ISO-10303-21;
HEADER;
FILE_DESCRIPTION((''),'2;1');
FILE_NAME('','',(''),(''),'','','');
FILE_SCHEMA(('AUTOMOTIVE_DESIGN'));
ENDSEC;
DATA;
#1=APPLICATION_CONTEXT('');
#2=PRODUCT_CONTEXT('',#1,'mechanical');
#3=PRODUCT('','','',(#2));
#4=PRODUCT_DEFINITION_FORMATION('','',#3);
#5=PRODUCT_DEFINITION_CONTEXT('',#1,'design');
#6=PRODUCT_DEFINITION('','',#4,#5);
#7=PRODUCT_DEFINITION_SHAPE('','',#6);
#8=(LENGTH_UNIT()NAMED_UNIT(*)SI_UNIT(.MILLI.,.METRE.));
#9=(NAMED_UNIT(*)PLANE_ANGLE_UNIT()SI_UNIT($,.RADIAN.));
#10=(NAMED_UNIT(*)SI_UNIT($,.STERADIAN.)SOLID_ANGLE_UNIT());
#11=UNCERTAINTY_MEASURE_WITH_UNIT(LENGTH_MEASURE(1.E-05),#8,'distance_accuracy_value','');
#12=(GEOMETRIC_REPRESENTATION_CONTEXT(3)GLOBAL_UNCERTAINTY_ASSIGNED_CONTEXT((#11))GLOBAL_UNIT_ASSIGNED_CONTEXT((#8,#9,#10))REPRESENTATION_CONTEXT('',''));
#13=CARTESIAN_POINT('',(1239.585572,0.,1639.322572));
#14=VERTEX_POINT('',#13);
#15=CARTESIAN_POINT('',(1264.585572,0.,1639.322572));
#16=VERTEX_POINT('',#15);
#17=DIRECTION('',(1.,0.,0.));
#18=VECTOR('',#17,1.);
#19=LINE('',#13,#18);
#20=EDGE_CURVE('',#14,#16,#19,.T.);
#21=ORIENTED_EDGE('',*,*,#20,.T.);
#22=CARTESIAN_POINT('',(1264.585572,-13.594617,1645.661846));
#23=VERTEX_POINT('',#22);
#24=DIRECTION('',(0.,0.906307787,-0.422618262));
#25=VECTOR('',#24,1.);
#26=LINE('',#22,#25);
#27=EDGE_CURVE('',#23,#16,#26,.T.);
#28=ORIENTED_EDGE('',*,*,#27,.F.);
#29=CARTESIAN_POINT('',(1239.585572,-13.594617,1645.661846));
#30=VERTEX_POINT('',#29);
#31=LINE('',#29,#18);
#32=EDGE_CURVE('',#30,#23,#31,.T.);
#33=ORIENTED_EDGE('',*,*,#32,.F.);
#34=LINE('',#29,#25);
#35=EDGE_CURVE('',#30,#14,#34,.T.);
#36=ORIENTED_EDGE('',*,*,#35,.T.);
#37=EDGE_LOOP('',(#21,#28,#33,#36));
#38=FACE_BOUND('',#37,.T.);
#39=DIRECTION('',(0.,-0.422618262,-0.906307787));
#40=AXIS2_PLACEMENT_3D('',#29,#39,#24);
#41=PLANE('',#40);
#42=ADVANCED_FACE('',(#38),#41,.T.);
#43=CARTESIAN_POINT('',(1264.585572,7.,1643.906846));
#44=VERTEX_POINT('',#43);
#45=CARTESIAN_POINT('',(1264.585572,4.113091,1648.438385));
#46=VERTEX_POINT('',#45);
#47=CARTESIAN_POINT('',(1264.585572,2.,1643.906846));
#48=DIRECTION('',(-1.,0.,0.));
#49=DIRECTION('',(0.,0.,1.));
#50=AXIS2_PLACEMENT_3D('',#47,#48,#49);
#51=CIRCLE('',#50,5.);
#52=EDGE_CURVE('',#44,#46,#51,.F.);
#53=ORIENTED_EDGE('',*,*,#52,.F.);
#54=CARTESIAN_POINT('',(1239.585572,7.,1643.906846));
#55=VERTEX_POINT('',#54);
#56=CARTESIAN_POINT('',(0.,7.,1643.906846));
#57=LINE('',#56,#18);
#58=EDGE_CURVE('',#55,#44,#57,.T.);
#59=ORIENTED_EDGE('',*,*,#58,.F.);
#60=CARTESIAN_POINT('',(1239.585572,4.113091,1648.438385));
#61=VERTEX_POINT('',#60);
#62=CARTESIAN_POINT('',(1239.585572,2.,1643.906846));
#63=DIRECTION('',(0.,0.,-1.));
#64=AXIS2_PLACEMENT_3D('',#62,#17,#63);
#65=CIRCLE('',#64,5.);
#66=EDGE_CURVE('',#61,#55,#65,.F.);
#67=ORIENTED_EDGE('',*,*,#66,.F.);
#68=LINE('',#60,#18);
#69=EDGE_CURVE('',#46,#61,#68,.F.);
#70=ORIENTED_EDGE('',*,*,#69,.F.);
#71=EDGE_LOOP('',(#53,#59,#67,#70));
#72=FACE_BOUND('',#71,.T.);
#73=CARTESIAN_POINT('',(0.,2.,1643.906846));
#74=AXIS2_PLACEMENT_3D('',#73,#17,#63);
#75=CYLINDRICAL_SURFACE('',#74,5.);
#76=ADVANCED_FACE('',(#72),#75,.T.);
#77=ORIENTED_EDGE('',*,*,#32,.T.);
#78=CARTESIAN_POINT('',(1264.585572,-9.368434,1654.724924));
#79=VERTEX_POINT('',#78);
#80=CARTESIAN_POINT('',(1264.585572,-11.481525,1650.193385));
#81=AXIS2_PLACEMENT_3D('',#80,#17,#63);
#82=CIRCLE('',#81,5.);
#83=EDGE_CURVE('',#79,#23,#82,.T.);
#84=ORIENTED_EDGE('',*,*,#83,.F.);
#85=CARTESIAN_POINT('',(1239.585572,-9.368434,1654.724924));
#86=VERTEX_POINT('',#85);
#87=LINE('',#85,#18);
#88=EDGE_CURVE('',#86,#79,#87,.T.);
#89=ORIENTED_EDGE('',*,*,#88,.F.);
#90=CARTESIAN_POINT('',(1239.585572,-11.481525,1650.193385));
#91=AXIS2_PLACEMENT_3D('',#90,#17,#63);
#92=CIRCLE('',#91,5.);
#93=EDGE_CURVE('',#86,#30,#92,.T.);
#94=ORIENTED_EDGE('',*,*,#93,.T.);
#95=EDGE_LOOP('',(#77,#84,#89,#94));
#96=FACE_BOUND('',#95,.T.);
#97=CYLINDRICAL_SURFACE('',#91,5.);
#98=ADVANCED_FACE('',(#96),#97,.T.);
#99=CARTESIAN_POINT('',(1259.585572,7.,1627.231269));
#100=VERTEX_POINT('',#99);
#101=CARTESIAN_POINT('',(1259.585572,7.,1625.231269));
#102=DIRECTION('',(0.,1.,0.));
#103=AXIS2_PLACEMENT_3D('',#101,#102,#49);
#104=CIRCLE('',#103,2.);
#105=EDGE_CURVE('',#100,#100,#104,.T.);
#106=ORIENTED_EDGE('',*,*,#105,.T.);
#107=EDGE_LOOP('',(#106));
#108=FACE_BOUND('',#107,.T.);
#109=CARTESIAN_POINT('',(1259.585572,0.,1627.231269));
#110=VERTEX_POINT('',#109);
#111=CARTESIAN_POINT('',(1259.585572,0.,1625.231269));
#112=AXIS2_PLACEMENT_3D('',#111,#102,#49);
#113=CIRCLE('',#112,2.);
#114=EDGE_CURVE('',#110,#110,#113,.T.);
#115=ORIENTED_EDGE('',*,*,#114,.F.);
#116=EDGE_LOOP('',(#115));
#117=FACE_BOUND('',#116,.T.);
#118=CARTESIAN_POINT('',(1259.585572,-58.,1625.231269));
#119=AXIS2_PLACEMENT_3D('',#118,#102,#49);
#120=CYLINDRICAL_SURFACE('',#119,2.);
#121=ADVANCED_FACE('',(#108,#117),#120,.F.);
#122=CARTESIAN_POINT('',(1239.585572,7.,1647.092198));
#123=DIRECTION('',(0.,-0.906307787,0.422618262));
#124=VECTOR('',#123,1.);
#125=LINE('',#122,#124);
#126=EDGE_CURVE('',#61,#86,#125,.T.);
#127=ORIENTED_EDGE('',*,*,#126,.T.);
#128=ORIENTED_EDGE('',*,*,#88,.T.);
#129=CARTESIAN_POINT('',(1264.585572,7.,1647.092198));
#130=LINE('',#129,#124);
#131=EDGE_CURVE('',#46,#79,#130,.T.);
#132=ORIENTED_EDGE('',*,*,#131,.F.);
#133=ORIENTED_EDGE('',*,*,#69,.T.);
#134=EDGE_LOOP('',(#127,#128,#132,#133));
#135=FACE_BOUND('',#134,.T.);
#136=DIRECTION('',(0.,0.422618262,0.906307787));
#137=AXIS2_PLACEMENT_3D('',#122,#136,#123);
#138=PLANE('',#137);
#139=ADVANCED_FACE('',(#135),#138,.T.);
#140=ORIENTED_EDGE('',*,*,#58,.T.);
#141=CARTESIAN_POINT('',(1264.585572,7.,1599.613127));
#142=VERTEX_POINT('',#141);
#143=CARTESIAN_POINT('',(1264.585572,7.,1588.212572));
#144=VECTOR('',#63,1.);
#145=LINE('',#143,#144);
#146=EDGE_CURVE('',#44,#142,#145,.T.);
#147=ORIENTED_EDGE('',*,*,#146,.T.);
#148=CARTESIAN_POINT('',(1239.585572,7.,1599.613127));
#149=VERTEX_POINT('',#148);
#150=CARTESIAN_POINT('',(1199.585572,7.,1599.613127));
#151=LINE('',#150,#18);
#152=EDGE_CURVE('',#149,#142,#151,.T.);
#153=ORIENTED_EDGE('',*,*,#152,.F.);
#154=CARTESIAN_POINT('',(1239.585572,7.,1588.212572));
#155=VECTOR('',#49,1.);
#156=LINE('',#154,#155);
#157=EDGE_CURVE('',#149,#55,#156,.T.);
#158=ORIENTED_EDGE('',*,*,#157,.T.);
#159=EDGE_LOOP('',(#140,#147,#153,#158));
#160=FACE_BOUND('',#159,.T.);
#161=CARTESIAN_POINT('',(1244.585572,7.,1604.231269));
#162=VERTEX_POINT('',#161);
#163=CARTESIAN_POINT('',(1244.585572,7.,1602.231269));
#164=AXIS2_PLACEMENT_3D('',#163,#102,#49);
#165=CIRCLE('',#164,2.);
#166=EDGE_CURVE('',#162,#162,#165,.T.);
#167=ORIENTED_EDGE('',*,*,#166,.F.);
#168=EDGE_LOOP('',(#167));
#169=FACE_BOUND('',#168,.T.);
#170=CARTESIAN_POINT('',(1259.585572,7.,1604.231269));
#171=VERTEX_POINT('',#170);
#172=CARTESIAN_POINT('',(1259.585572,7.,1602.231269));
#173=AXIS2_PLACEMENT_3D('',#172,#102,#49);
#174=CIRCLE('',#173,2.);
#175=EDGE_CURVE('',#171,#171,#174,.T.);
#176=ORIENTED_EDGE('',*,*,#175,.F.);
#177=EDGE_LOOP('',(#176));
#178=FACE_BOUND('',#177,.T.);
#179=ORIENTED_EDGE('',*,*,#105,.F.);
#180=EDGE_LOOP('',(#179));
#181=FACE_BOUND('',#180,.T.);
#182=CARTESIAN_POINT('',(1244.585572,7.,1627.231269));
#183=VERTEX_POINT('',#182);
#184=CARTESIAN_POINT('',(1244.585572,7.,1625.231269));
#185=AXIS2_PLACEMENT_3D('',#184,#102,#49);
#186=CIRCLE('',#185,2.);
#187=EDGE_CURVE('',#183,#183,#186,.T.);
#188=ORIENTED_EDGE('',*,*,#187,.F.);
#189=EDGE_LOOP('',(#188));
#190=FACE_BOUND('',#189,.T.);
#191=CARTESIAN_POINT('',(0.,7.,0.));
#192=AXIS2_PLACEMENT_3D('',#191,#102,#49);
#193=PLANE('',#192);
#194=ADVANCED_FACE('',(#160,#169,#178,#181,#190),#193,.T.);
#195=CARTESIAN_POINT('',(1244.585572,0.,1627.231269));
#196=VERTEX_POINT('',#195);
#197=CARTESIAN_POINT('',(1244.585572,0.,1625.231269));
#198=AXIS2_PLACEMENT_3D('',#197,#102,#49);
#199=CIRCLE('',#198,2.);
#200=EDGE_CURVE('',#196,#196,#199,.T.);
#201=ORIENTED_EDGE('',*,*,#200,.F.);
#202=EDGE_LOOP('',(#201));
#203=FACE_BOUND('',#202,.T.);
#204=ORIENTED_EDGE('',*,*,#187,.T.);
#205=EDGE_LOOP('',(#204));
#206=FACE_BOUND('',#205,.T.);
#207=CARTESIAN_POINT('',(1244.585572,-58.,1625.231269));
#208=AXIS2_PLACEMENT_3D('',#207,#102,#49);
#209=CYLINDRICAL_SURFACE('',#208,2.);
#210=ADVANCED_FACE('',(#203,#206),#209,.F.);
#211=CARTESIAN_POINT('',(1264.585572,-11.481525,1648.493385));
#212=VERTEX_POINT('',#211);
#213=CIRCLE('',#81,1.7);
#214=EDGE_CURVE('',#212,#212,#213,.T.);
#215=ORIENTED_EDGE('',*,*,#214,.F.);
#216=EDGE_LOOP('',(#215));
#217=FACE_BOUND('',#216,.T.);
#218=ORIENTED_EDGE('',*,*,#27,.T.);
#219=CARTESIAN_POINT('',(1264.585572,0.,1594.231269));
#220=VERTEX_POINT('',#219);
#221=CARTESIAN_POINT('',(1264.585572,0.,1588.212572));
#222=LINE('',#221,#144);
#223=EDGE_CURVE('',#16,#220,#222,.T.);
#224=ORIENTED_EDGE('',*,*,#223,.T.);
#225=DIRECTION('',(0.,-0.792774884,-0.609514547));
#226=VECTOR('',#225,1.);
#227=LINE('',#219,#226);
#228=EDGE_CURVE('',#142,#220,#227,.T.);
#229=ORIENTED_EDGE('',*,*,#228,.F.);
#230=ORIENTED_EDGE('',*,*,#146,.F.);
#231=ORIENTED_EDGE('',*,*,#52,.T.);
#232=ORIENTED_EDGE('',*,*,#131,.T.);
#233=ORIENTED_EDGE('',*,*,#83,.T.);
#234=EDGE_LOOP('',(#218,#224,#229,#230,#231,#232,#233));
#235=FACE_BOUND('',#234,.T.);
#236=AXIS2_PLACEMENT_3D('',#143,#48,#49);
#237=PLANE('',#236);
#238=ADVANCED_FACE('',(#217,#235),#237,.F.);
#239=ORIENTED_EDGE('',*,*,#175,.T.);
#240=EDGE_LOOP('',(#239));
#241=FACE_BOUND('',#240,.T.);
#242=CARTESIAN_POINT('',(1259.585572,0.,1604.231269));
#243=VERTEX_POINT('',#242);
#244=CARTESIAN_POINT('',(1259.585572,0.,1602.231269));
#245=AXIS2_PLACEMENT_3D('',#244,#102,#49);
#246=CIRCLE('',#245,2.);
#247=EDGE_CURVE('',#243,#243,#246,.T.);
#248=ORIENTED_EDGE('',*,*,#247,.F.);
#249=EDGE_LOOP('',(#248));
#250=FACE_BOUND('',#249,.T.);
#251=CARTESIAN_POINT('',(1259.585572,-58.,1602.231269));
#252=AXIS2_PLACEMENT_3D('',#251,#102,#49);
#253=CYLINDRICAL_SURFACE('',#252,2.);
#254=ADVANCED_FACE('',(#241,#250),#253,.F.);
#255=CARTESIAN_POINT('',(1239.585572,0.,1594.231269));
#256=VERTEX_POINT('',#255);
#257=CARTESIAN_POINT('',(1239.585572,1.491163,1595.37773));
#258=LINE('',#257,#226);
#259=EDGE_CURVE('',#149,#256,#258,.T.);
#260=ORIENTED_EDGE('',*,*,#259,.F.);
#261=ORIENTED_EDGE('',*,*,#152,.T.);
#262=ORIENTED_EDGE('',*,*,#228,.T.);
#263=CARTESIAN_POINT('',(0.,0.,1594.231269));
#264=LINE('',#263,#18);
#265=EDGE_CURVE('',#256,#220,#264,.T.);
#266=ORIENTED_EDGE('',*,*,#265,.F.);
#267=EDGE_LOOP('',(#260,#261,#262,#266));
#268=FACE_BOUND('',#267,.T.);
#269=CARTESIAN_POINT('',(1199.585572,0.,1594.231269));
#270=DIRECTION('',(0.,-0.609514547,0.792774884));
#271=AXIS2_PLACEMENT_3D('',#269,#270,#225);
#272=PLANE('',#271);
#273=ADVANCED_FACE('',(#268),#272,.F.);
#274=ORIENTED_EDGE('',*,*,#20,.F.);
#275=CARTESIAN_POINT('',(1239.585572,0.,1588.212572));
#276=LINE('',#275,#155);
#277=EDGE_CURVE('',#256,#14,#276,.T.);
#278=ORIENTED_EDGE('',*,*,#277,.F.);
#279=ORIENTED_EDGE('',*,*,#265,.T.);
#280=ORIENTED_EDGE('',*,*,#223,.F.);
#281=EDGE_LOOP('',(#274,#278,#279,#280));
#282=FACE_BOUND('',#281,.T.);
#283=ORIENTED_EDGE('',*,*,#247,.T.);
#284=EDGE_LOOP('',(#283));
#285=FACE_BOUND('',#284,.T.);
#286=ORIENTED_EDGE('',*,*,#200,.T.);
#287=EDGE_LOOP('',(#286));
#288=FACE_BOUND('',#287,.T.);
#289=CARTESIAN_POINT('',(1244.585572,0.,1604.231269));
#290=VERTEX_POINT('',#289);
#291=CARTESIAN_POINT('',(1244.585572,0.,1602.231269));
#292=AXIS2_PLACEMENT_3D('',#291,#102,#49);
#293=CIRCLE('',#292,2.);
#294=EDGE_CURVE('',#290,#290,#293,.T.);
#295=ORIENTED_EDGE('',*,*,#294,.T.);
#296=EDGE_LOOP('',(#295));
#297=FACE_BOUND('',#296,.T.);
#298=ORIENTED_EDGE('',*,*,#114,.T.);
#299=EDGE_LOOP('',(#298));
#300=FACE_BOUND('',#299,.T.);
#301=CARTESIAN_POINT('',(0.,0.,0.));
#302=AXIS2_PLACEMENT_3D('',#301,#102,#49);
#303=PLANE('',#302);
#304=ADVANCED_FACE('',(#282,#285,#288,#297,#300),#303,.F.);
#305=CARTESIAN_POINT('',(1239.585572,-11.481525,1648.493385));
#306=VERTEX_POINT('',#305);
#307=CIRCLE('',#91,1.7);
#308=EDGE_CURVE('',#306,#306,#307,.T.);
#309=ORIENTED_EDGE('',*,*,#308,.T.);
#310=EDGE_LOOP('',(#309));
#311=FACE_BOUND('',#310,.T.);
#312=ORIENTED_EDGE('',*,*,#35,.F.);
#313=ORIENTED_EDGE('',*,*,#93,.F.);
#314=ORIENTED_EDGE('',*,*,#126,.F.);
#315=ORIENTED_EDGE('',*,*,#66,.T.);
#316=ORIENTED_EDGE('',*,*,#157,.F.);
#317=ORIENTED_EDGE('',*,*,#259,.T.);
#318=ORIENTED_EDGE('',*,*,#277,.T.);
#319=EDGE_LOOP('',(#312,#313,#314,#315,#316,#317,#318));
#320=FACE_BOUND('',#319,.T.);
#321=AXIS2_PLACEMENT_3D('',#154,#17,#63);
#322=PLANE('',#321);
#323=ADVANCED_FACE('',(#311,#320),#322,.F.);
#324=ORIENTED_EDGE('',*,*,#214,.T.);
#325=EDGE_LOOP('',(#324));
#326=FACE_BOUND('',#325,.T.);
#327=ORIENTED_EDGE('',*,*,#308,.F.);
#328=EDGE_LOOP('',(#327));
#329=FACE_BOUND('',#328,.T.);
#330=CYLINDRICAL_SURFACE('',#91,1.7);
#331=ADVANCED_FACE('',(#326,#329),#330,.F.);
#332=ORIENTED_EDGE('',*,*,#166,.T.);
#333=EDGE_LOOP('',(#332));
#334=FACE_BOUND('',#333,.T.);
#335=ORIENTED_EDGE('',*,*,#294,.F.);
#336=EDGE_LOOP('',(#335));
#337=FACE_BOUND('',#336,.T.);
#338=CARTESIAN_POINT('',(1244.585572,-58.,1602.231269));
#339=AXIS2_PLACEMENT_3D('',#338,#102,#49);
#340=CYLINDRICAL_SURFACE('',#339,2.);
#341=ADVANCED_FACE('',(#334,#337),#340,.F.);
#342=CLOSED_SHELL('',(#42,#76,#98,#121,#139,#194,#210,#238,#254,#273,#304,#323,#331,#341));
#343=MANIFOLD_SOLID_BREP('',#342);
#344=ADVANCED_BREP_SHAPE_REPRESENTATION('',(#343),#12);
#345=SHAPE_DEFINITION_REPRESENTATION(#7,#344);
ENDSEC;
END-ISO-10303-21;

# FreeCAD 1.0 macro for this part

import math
import FreeCAD as App
import Part
import Sketcher
from FreeCAD import Vector
Q = App.Units.Quantity


def edges_at(feature, points):
    """Names of the edges that pass closest to the given points."""
    edges = feature.Shape.Edges
    near = lambda p: min(range(len(edges)), key=lambda i: edges[i].distToShape(Part.Vertex(*p))[0])
    return sorted({f"Edge{near(p) + 1}" for p in points})

doc = App.newDocument("Part")
body = doc.addObject("PartDesign::Body", "Body")

sketch1 = doc.addObject("Sketcher::SketchObject", "Sketch")
body.addObject(sketch1)
sketch1.AttachmentSupport = (doc.XZ_Plane, [""])
sketch1.MapMode = "FlatFace"
sketch1.addGeometry(Part.LineSegment(Vector(1239.585572, 1588.212572, 0), Vector(1239.585572, 1632.122572, 0)), False)
sketch1.addGeometry(Part.LineSegment(Vector(1239.585572, 1632.122572, 0), Vector(1264.585572, 1632.122572, 0)), False)
sketch1.addGeometry(Part.LineSegment(Vector(1264.585572, 1632.122572, 0), Vector(1264.585572, 1588.212572, 0)), False)
sketch1.addGeometry(Part.LineSegment(Vector(1264.585572, 1588.212572, 0), Vector(1239.585572, 1588.212572, 0)), False)
sketch1.addConstraint(Sketcher.Constraint("Coincident", 0, 2, 1, 1))
sketch1.addConstraint(Sketcher.Constraint("Coincident", 1, 2, 2, 1))
sketch1.addConstraint(Sketcher.Constraint("Coincident", 2, 2, 3, 1))
sketch1.addConstraint(Sketcher.Constraint("Coincident", 3, 2, 0, 1))
sketch1.addConstraint(Sketcher.Constraint("Vertical", 0))
sketch1.addConstraint(Sketcher.Constraint("Horizontal", 1))
sketch1.addConstraint(Sketcher.Constraint("Vertical", 2))
sketch1.addConstraint(Sketcher.Constraint("Horizontal", 3))
sketch1.addConstraint(Sketcher.Constraint("DistanceX", 1, 1, 1, 2, 25.0))
sketch1.addConstraint(Sketcher.Constraint("DistanceY", 0, 1, 0, 2, 43.91))
sketch1.addConstraint(Sketcher.Constraint("DistanceX", -1, 1, 0, 2, 1239.585572))
sketch1.addConstraint(Sketcher.Constraint("DistanceY", -1, 1, 0, 2, 1632.122572))
pad1 = doc.addObject("PartDesign::Pad", "Pad")
body.addObject(pad1)
pad1.Profile = sketch1
pad1.Length = 7
pad1.Reversed = True

sketch2 = doc.addObject("Sketcher::SketchObject", "Sketch001")
body.addObject(sketch2)
sketch2.AttachmentSupport = (doc.YZ_Plane, [""])
sketch2.MapMode = "FlatFace"
sketch2.AttachmentOffset = App.Placement(Vector(0, 0, 1264.585572), App.Rotation())
sketch2.addGeometry(Part.LineSegment(Vector(7, 1599.613127, 0), Vector(0, 1594.231269, 0)), False)
sketch2.addGeometry(Part.LineSegment(Vector(0, 1594.231269, 0), Vector(-1.015545, 1585.312996, 0)), False)
sketch2.addGeometry(Part.LineSegment(Vector(-1.015545, 1585.312996, 0), Vector(9.948425, 1588.127511, 0)), False)
sketch2.addGeometry(Part.LineSegment(Vector(9.948425, 1588.127511, 0), Vector(7, 1599.613127, 0)), False)
sketch2.addConstraint(Sketcher.Constraint("Coincident", 0, 2, 1, 1))
sketch2.addConstraint(Sketcher.Constraint("Coincident", 1, 2, 2, 1))
sketch2.addConstraint(Sketcher.Constraint("Coincident", 2, 2, 3, 1))
sketch2.addConstraint(Sketcher.Constraint("Coincident", 3, 2, 0, 1))
sketch2.addConstraint(Sketcher.Constraint("PointOnObject", 0, 2, -2))
sketch2.addConstraint(Sketcher.Constraint("Perpendicular", 2, 3))
sketch2.addConstraint(Sketcher.Constraint("DistanceX", -1, 1, 3, 2, 7.0))
sketch2.addConstraint(Sketcher.Constraint("Distance", 1, 8.975908))
sketch2.addConstraint(Sketcher.Constraint("DistanceY", -1, 1, 0, 2, 1594.231269))
sketch2.addConstraint(Sketcher.Constraint("DistanceY", -1, 1, 2, 2, 1588.127511))
sketch2.addConstraint(Sketcher.Constraint("DistanceX", 1, 2, 2, 2, 10.963969))
sketch2.addConstraint(Sketcher.Constraint("DistanceY", 1, 2, 3, 2, 14.300131))
pocket1 = doc.addObject("PartDesign::Pocket", "Pocket")
body.addObject(pocket1)
pocket1.Profile = sketch2
pocket1.Length = 65

sketch3 = doc.addObject("Sketcher::SketchObject", "Sketch002")
body.addObject(sketch3)
sketch3.AttachmentSupport = (doc.XZ_Plane, [""])
sketch3.MapMode = "FlatFace"
sketch3.AttachmentOffset = App.Placement(Vector(0, 0, -7), App.Rotation())
sketch3.addGeometry(Part.Circle(Vector(1259.585572, 1602.231269, 0), Vector(0, 0, 1), 2), False)
sketch3.addGeometry(Part.Circle(Vector(1259.585572, 1625.231269, 0), Vector(0, 0, 1), 2), False)
sketch3.addGeometry(Part.Circle(Vector(1244.585572, 1602.231269, 0), Vector(0, 0, 1), 2), False)
sketch3.addGeometry(Part.Circle(Vector(1244.585572, 1625.231269, 0), Vector(0, 0, 1), 2), False)
sketch3.addConstraint(Sketcher.Constraint("Equal", 0, 1))
sketch3.addConstraint(Sketcher.Constraint("Equal", 1, 2))
sketch3.addConstraint(Sketcher.Constraint("Equal", 2, 3))
sketch3.addConstraint(Sketcher.Constraint("Horizontal", 0, 3, 2, 3))
sketch3.addConstraint(Sketcher.Constraint("Horizontal", 1, 3, 3, 3))
sketch3.addConstraint(Sketcher.Constraint("Vertical", 0, 3, 1, 3))
sketch3.addConstraint(Sketcher.Constraint("Vertical", 2, 3, 3, 3))
sketch3.addConstraint(Sketcher.Constraint("Diameter", 0, 4.0))
sketch3.addConstraint(Sketcher.Constraint("DistanceY", 0, 3, 1, 3, 23.0))
sketch3.addConstraint(Sketcher.Constraint("DistanceX", 2, 3, 0, 3, 15.0))
sketch3.addConstraint(Sketcher.Constraint("DistanceX", -1, 1, 0, 3, 1259.585572))
sketch3.addConstraint(Sketcher.Constraint("DistanceY", -1, 1, 0, 3, 1602.231269))
pocket2 = doc.addObject("PartDesign::Pocket", "Pocket001")
body.addObject(pocket2)
pocket2.Profile = sketch3
pocket2.Length = 65
pocket2.Reversed = True

sketch4 = doc.addObject("Sketcher::SketchObject", "Sketch003")
body.addObject(sketch4)
sketch4.AttachmentSupport = (doc.XY_Plane, [""])
sketch4.MapMode = "FlatFace"
sketch4.AttachmentOffset = App.Placement(Vector(0, 0, 1632.122572), App.Rotation())
sketch4.addGeometry(Part.LineSegment(Vector(1239.585572, 7, 0), Vector(1239.585572, 0, 0)), False)
sketch4.addGeometry(Part.LineSegment(Vector(1239.585572, 0, 0), Vector(1264.585572, 0, 0)), False)
sketch4.addGeometry(Part.LineSegment(Vector(1264.585572, 0, 0), Vector(1264.585572, 7, 0)), False)
sketch4.addGeometry(Part.LineSegment(Vector(1264.585572, 7, 0), Vector(1239.585572, 7, 0)), False)
sketch4.addConstraint(Sketcher.Constraint("Coincident", 0, 2, 1, 1))
sketch4.addConstraint(Sketcher.Constraint("Coincident", 1, 2, 2, 1))
sketch4.addConstraint(Sketcher.Constraint("Coincident", 2, 2, 3, 1))
sketch4.addConstraint(Sketcher.Constraint("Coincident", 3, 2, 0, 1))
sketch4.addConstraint(Sketcher.Constraint("Vertical", 0))
sketch4.addConstraint(Sketcher.Constraint("Horizontal", 1))
sketch4.addConstraint(Sketcher.Constraint("Vertical", 2))
sketch4.addConstraint(Sketcher.Constraint("Horizontal", 3))
sketch4.addConstraint(Sketcher.Constraint("PointOnObject", 0, 2, -1))
sketch4.addConstraint(Sketcher.Constraint("DistanceX", 1, 1, 1, 2, 25.0))
sketch4.addConstraint(Sketcher.Constraint("DistanceY", 0, 2, 0, 1, 7.0))
sketch4.addConstraint(Sketcher.Constraint("DistanceX", -1, 1, 0, 2, 1239.585572))
pad2 = doc.addObject("PartDesign::Pad", "Pad001")
body.addObject(pad2)
pad2.Profile = sketch4
pad2.Length = 10

sketch5 = doc.addObject("Sketcher::SketchObject", "Sketch004")
body.addObject(sketch5)
sketch5.AttachmentSupport = (doc.YZ_Plane, [""])
sketch5.MapMode = "FlatFace"
sketch5.AttachmentOffset = App.Placement(Vector(0, 0, 1264.585572), App.Rotation())
sketch5.addGeometry(Part.LineSegment(Vector(-13.594617, 1645.661846, 0), Vector(0, 1639.322572, 0)), False)
sketch5.addGeometry(Part.LineSegment(Vector(0, 1639.322572, 0), Vector(7, 1642.122572, 0)), False)
sketch5.addGeometry(Part.LineSegment(Vector(7, 1642.122572, 0), Vector(7, 1647.092198, 0)), False)
sketch5.addGeometry(Part.LineSegment(Vector(7, 1647.092198, 0), Vector(-9.368434, 1654.724924, 0)), False)
sketch5.addGeometry(Part.ArcOfCircle(Part.Circle(Vector(-11.481525, 1650.193385, 0), Vector(0, 0, 1), 5), math.radians(65), math.radians(245)), False)
sketch5.addGeometry(Part.Circle(Vector(-11.481525, 1650.193385, 0), Vector(0, 0, 1), 1.7), False)
sketch5.addConstraint(Sketcher.Constraint("Coincident", 0, 2, 1, 1))
sketch5.addConstraint(Sketcher.Constraint("Coincident", 1, 2, 2, 1))
sketch5.addConstraint(Sketcher.Constraint("Coincident", 2, 2, 3, 1))
sketch5.addConstraint(Sketcher.Constraint("Tangent", 3, 2, 4, 1))
sketch5.addConstraint(Sketcher.Constraint("Tangent", 4, 2, 0, 1))
sketch5.addConstraint(Sketcher.Constraint("Vertical", 2))
sketch5.addConstraint(Sketcher.Constraint("Coincident", 5, 3, 4, 3))
sketch5.addConstraint(Sketcher.Constraint("PointOnObject", 0, 2, -2))
sketch5.addConstraint(Sketcher.Constraint("Parallel", 0, 3))
sketch5.addConstraint(Sketcher.Constraint("Radius", 4, 5.0))
sketch5.addConstraint(Sketcher.Constraint("Diameter", 5, 3.4))
sketch5.addConstraint(Sketcher.Constraint("Angle", 0, Q("-25 deg")))
sketch5.addConstraint(Sketcher.Constraint("Distance", 0, 15.0))
sketch5.addConstraint(Sketcher.Constraint("DistanceX", -1, 1, 1, 2, 7.0))
sketch5.addConstraint(Sketcher.Constraint("DistanceY", 0, 2, 1, 2, 2.8))
sketch5.addConstraint(Sketcher.Constraint("DistanceY", -1, 1, 4, 3, 1650.193385))
pad3 = doc.addObject("PartDesign::Pad", "Pad002")
body.addObject(pad3)
pad3.Profile = sketch5
pad3.Length = 25
pad3.Reversed = True
doc.recompute()

fillet = doc.addObject("PartDesign::Fillet", "Fillet")
body.addObject(fillet)
fillet.Base = (pad3, edges_at(pad3, [(1252.086, 7, 1647.092)]))
fillet.Radius = 5

doc.recompute()
